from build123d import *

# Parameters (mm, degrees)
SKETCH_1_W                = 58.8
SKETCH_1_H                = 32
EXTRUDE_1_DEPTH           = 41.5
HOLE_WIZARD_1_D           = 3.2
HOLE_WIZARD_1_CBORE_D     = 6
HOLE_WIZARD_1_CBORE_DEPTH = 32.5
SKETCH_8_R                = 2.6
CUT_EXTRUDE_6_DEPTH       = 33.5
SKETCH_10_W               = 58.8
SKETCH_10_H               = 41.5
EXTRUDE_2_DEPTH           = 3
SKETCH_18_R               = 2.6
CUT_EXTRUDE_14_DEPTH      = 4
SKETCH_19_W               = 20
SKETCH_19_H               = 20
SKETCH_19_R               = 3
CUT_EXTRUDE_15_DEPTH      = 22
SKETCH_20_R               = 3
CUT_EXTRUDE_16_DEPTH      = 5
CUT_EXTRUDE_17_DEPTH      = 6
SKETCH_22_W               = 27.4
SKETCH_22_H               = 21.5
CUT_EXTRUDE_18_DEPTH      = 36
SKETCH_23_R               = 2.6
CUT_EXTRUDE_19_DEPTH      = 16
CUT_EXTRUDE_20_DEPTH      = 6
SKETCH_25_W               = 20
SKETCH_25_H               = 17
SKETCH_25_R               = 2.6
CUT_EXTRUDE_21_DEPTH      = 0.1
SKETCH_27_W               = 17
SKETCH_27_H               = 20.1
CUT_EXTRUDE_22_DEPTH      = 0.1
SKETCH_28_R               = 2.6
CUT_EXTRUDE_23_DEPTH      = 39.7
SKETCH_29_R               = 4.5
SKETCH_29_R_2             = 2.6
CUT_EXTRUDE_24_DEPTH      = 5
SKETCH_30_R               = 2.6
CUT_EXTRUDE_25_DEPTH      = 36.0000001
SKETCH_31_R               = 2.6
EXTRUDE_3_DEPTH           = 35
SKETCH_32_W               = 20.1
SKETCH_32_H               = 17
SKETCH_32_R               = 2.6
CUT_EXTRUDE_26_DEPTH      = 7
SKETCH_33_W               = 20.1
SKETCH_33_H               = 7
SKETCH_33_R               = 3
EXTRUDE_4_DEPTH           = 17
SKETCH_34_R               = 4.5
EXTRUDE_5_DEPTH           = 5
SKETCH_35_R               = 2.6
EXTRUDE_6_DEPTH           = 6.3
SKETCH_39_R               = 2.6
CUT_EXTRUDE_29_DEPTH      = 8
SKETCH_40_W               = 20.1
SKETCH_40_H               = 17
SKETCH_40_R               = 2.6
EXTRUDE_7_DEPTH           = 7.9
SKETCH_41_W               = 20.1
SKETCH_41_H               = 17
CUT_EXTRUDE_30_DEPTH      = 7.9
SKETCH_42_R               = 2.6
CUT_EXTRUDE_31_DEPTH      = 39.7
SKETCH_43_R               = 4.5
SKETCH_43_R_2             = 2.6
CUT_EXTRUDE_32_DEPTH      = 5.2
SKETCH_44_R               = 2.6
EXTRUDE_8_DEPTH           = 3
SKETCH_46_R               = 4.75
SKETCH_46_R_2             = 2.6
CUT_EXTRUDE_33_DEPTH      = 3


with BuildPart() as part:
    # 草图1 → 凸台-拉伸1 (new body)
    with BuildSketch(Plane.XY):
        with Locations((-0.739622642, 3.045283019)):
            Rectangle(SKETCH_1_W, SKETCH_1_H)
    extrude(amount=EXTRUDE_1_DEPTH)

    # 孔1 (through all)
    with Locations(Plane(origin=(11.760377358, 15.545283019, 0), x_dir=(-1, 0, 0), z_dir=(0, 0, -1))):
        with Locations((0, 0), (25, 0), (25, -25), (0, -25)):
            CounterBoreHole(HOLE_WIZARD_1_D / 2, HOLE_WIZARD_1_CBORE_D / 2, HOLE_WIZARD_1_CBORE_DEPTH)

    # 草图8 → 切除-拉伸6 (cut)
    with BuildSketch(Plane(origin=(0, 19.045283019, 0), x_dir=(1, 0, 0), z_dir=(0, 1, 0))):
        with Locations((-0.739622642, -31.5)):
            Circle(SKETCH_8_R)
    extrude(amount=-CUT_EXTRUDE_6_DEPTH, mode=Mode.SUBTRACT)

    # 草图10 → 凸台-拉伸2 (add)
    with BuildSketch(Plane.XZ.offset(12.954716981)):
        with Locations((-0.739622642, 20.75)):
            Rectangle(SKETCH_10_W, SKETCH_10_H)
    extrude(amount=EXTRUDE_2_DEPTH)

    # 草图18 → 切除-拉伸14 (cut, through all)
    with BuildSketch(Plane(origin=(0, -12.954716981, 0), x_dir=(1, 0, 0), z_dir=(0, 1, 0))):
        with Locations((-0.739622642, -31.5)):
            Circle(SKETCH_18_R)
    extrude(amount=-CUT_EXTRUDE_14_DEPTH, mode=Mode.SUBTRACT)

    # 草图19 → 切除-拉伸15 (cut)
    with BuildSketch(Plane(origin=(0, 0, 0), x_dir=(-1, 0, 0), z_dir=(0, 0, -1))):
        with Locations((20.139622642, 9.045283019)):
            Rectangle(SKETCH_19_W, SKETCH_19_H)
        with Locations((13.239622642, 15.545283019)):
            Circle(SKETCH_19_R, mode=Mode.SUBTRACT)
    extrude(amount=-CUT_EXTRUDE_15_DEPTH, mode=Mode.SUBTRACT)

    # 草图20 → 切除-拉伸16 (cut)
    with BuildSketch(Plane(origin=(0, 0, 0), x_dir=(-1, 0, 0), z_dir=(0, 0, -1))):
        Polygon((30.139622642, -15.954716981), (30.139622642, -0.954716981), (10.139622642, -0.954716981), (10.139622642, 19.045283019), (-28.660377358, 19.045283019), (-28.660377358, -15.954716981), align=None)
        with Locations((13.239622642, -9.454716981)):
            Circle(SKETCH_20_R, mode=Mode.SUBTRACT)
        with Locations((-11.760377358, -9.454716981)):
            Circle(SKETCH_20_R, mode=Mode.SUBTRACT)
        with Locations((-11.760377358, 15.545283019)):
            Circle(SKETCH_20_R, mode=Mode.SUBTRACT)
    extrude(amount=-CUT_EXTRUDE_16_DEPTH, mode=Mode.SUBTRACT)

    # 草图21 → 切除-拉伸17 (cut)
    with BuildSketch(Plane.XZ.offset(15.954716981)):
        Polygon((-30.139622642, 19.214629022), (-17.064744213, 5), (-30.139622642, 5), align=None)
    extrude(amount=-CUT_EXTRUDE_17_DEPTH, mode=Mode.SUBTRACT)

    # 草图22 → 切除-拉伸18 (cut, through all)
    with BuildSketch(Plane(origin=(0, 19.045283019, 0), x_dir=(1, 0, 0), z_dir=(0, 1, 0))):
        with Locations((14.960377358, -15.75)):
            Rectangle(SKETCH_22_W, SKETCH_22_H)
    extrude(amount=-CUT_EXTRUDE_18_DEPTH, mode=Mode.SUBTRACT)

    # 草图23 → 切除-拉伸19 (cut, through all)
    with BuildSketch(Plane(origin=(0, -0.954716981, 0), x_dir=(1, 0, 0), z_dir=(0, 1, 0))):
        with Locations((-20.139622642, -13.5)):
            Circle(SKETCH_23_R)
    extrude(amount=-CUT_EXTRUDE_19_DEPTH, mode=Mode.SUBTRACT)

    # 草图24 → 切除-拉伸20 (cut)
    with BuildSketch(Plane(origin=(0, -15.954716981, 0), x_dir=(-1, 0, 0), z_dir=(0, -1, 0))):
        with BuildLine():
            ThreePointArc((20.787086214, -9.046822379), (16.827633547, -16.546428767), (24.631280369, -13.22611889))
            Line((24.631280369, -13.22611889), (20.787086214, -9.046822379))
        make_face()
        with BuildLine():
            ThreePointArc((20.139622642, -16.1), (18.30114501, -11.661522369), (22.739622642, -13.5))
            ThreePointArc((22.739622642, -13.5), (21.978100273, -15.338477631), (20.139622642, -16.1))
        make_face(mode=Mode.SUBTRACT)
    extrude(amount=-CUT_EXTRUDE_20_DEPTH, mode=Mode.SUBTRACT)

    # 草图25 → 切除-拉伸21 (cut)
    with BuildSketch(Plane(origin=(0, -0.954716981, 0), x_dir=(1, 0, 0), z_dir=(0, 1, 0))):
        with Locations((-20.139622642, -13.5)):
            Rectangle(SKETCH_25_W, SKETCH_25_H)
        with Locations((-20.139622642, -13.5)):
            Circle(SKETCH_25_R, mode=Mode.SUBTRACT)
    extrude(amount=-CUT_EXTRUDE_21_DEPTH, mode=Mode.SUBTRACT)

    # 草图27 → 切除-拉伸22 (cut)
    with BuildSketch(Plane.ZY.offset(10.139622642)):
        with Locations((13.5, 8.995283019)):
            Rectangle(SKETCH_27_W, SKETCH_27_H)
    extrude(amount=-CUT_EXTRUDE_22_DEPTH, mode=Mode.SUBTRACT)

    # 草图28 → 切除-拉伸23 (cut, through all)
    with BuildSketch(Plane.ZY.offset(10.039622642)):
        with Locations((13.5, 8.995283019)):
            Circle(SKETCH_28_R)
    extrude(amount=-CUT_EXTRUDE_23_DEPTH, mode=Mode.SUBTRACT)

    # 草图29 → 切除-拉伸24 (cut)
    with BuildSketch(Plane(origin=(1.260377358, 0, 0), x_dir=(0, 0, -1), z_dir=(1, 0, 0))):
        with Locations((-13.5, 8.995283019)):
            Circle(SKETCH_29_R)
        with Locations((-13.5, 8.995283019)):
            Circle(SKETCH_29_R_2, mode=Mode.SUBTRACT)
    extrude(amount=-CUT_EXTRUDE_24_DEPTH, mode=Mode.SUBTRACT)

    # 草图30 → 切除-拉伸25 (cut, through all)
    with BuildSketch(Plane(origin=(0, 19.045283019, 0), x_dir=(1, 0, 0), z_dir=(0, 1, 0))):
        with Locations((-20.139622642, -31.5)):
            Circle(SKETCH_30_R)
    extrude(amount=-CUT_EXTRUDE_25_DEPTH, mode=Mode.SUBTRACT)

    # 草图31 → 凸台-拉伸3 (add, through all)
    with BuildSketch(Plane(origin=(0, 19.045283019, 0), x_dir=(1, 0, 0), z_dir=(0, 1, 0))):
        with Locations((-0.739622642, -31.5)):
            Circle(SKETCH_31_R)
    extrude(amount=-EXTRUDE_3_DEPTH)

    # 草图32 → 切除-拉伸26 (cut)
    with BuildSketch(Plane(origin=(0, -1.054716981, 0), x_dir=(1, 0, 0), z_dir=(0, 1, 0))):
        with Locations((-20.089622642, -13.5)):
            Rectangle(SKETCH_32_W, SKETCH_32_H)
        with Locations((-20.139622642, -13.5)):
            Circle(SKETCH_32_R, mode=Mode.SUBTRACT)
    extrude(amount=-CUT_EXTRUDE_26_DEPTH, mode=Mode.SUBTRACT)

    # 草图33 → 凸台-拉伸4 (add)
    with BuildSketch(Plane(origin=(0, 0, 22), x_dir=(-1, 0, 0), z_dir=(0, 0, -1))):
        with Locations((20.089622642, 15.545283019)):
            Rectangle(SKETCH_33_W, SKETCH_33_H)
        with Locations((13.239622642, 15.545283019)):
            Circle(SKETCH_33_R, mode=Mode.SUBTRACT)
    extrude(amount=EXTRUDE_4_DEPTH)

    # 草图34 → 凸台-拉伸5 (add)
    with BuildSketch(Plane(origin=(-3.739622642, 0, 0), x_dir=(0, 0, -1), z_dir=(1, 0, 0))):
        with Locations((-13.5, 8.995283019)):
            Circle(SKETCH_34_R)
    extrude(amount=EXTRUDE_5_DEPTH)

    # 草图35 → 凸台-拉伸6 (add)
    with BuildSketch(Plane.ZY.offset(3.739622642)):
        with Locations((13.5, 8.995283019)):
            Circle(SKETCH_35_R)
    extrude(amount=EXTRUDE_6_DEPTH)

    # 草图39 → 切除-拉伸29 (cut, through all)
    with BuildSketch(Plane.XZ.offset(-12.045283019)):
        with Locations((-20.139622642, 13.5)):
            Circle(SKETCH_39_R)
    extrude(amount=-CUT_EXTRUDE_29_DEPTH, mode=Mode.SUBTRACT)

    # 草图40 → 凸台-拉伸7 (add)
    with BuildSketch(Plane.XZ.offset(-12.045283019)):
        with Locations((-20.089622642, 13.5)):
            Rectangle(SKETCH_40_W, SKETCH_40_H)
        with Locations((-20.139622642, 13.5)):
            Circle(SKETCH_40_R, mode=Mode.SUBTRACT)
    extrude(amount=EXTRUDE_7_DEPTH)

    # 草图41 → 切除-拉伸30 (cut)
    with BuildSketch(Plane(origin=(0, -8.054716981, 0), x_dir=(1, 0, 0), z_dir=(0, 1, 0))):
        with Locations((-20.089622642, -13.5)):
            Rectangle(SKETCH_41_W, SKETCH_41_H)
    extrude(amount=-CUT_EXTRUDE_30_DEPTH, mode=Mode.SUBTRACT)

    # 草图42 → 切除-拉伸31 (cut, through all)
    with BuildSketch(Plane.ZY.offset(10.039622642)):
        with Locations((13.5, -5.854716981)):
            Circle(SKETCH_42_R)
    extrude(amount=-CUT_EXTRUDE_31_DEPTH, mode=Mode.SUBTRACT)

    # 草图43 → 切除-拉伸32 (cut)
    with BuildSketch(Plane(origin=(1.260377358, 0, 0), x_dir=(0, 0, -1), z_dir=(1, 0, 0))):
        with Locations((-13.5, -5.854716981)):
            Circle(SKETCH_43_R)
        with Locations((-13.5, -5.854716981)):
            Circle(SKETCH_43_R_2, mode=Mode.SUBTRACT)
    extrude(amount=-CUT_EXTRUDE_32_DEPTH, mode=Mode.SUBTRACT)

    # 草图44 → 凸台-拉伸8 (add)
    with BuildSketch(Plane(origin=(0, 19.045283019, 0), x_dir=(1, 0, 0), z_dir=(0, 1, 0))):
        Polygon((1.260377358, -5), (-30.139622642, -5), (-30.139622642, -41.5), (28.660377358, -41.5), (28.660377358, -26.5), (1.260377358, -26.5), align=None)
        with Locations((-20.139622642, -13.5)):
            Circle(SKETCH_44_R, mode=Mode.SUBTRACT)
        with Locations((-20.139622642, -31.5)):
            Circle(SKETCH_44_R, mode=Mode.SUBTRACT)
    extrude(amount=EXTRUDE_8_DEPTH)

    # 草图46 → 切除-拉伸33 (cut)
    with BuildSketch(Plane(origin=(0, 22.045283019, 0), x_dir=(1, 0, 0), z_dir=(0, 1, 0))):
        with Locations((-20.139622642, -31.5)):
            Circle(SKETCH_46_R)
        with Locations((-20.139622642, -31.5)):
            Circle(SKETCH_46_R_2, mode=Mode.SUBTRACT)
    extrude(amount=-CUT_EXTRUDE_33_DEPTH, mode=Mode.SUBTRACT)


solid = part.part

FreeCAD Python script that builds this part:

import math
import FreeCAD as App
import Part
import Sketcher

V = App.Vector


def add_polygon(sketch, points):
    """Adds a closed chain of lines whose ends are joined by coincident constraints."""
    first, n = sketch.GeometryCount, len(points)
    for a, b in zip(points, points[1:] + points[:1]):
        sketch.addGeometry(Part.LineSegment(App.Vector(*a, 0), App.Vector(*b, 0)), False)
    for i in range(n):
        sketch.addConstraint(Sketcher.Constraint("Coincident", first + i, 2, first + (i + 1) % n, 1))

doc = App.newDocument("Part")
params = doc.addObject("Spreadsheet::Sheet", "Params")
for row, (alias, value) in enumerate([
    ("sketch1_height", "32 mm"),
    ("sketch1_width", "58.8 mm"),
    ("pad1_length", "41.5 mm"),
    ("sketch2_diameter", "3.2 mm"),
    ("hole_diameter", "3.2 mm"),
    ("hole_cbore_diameter", "6 mm"),
    ("hole_cbore_depth", "32.5 mm"),
    ("sketch3_diameter", "5.2 mm"),
    ("pocket1_length", "33.5 mm"),
    ("sketch4_width", "58.8 mm"),
    ("sketch4_height", "41.5 mm"),
    ("pad2_length", "3 mm"),
    ("sketch5_diameter", "5.2 mm"),
    ("sketch6_diameter", "6 mm"),
    ("sketch6_width", "20 mm"),
    ("pocket3_length", "22 mm"),
    ("sketch7_diameter", "6 mm"),
    ("sketch7_width", "20 mm"),
    ("sketch7_height", "15 mm"),
    ("sketch7_width2", "38.8 mm"),
    ("pocket4_length", "5 mm"),
    ("pocket5_length", "6 mm"),
    ("sketch9_width", "27.4 mm"),
    ("sketch9_height", "21.5 mm"),
    ("sketch10_diameter", "5.2 mm"),
    ("sketch11_radius", "4.5 mm"),
    ("sketch11_radius2", "2.6 mm"),
    ("pocket8_length", "6 mm"),
    ("sketch12_diameter", "5.2 mm"),
    ("sketch12_width", "20 mm"),
    ("sketch12_height", "17 mm"),
    ("pocket9_length", "0.1 mm"),
    ("sketch13_height", "17 mm"),
    ("sketch13_width", "20.1 mm"),
    ("pocket10_length", "0.1 mm"),
    ("sketch14_diameter", "5.2 mm"),
    ("sketch15_diameter", "9 mm"),
    ("sketch15_diameter2", "5.2 mm"),
    ("pocket12_length", "5 mm"),
    ("sketch16_diameter", "5.2 mm"),
    ("sketch17_diameter", "5.2 mm"),
    ("pad3_length", "35 mm"),
    ("sketch18_diameter", "5.2 mm"),
    ("sketch18_height", "17 mm"),
    ("sketch18_width", "20.1 mm"),
    ("pocket14_length", "7 mm"),
    ("sketch19_diameter", "6 mm"),
    ("sketch19_height", "7 mm"),
    ("sketch19_width", "20.1 mm"),
    ("pad4_length", "17 mm"),
    ("sketch20_diameter", "9 mm"),
    ("pad5_length", "5 mm"),
    ("sketch21_diameter", "5.2 mm"),
    ("pad6_length", "6.3 mm"),
    ("sketch22_diameter", "5.2 mm"),
    ("sketch23_diameter", "5.2 mm"),
    ("sketch23_height", "17 mm"),
    ("sketch23_width", "20.1 mm"),
    ("pad7_length", "7.9 mm"),
    ("sketch24_height", "17 mm"),
    ("sketch24_width", "20.1 mm"),
    ("pocket16_length", "7.9 mm"),
    ("sketch25_diameter", "5.2 mm"),
    ("sketch26_diameter", "9 mm"),
    ("sketch26_diameter2", "5.2 mm"),
    ("pocket18_length", "5.2 mm"),
    ("sketch27_diameter", "5.2 mm"),
    ("sketch27_height", "15 mm"),
    ("sketch27_width", "31.4 mm"),
    ("sketch27_width2", "58.8 mm"),
    ("sketch27_height2", "36.5 mm"),
    ("pad8_length", "3 mm"),
    ("sketch28_diameter", "9.5 mm"),
    ("sketch28_diameter2", "5.2 mm"),
    ("pocket19_length", "3 mm"),
], start=1):
    params.set(f"A{row}", alias)
    params.set(f"B{row}", "=" + value)
    params.setAlias(f"B{row}", alias)

body = doc.addObject("PartDesign::Body", "Body")

sketch1 = doc.addObject("Sketcher::SketchObject", "Sketch")
body.addObject(sketch1)
sketch1.AttachmentSupport = (doc.XY_Plane, [""])
sketch1.MapMode = "FlatFace"
add_polygon(sketch1, [(-30, 19), (-30, -13), (29, -13), (29, 19)])
sketch1.addConstraint([
    Sketcher.Constraint("Vertical", 0),
    Sketcher.Constraint("Horizontal", 1),
    Sketcher.Constraint("Vertical", 2),
    Sketcher.Constraint("Horizontal", 3),
    Sketcher.Constraint("DistanceY", 0, 2, 0, 1, 32.0),
    Sketcher.Constraint("DistanceX", 1, 1, 1, 2, 58.8),
    Sketcher.Constraint("DistanceX", 0, 2, -1, 1, 30.139623),
    Sketcher.Constraint("DistanceY", 0, 2, -1, 1, 12.954717),
])
sketch1.setExpression("Constraints[8]", "Params.sketch1_height")
sketch1.setExpression("Constraints[9]", "Params.sketch1_width")
pad1 = doc.addObject("PartDesign::Pad", "Pad")
body.addObject(pad1)
pad1.Profile = sketch1
pad1.setExpression("Length", "Params.pad1_length")

sketch2 = doc.addObject("Sketcher::SketchObject", "Sketch001")
body.addObject(sketch2)
sketch2.AttachmentSupport = (doc.XY_Plane, [""])
sketch2.MapMode = "FlatFace"
sketch2.addGeometry([
    Part.Circle(V(11.8, 15.5, 0), V(0, 0, 1), 1.6),
    Part.Circle(V(-13.2, 15.5, 0), V(0, 0, 1), 1.6),
    Part.Circle(V(-13.2, -9.5, 0), V(0, 0, 1), 1.6),
    Part.Circle(V(11.8, -9.5, 0), V(0, 0, 1), 1.6),
], False)
sketch2.addConstraint([
    Sketcher.Constraint("Equal", 0, 1),
    Sketcher.Constraint("Equal", 1, 2),
    Sketcher.Constraint("Equal", 2, 3),
    Sketcher.Constraint("Horizontal", 0, 3, 1, 3),
    Sketcher.Constraint("Horizontal", 2, 3, 3, 3),
    Sketcher.Constraint("Vertical", 1, 3, 2, 3),
    Sketcher.Constraint("Vertical", 0, 3, 3, 3),
    Sketcher.Constraint("Diameter", 0, 3.2),
    Sketcher.Constraint("DistanceX", 1, 3, 0, 3, 25.0),
    Sketcher.Constraint("DistanceY", 2, 3, 1, 3, 25.0),
    Sketcher.Constraint("DistanceX", -1, 1, 0, 3, 11.760377),
    Sketcher.Constraint("DistanceY", -1, 1, 0, 3, 15.545283),
])
sketch2.setExpression("Constraints[7]", "Params.sketch2_diameter")
doc.recompute()
hole = doc.addObject("PartDesign::Hole", "Hole")
body.addObject(hole)
hole.Profile = sketch2
hole.ThreadType = "None"
hole.setExpression("Diameter", "Params.hole_diameter")
hole.DepthType = "ThroughAll"
hole.HoleCutType = "Counterbore"
hole.setExpression("HoleCutDiameter", "Params.hole_cbore_diameter")
hole.setExpression("HoleCutDepth", "Params.hole_cbore_depth")
hole.Reversed = True

sketch3 = doc.addObject("Sketcher::SketchObject", "Sketch002")
body.addObject(sketch3)
sketch3.AttachmentSupport = (doc.XZ_Plane, [""])
sketch3.MapMode = "FlatFace"
sketch3.AttachmentOffset = App.Placement(V(0, 0, -19.045283), App.Rotation())
sketch3.addGeometry(Part.Circle(V(-0.7, 31.5, 0), V(0, 0, 1), 2.6), False)
sketch3.addConstraint([
    Sketcher.Constraint("Diameter", 0, 5.2),
    Sketcher.Constraint("DistanceY", -1, 1, 0, 3, 31.5),
    Sketcher.Constraint("DistanceX", 0, 3, -1, 1, 0.739623),
])
sketch3.setExpression("Constraints[0]", "Params.sketch3_diameter")
pocket1 = doc.addObject("PartDesign::Pocket", "Pocket")
body.addObject(pocket1)
pocket1.Profile = sketch3
pocket1.setExpression("Length", "Params.pocket1_length")
pocket1.Reversed = True

sketch4 = doc.addObject("Sketcher::SketchObject", "Sketch003")
body.addObject(sketch4)
sketch4.AttachmentSupport = (doc.XZ_Plane, [""])
sketch4.MapMode = "FlatFace"
sketch4.AttachmentOffset = App.Placement(V(0, 0, 12.954717), App.Rotation())
add_polygon(sketch4, [(-30, 42), (-30, 0), (29, 0), (29, 42)])
sketch4.addConstraint([
    Sketcher.Constraint("Vertical", 0),
    Sketcher.Constraint("Horizontal", 1),
    Sketcher.Constraint("Vertical", 2),
    Sketcher.Constraint("Horizontal", 3),
    Sketcher.Constraint("PointOnObject", 0, 2, -1),
    Sketcher.Constraint("DistanceX", 1, 1, 1, 2, 58.8),
    Sketcher.Constraint("DistanceY", 0, 2, 0, 1, 41.5),
    Sketcher.Constraint("DistanceX", 0, 2, -1, 1, 30.139623),
])
sketch4.setExpression("Constraints[9]", "Params.sketch4_width")
sketch4.setExpression("Constraints[10]", "Params.sketch4_height")
pad2 = doc.addObject("PartDesign::Pad", "Pad001")
body.addObject(pad2)
pad2.Profile = sketch4
pad2.setExpression("Length", "Params.pad2_length")

sketch5 = doc.addObject("Sketcher::SketchObject", "Sketch004")
body.addObject(sketch5)
sketch5.AttachmentSupport = (doc.XZ_Plane, [""])
sketch5.MapMode = "FlatFace"
sketch5.AttachmentOffset = App.Placement(V(0, 0, 12.954717), App.Rotation())
sketch5.addGeometry(Part.Circle(V(-0.7, 31.5, 0), V(0, 0, 1), 2.6), False)
sketch5.addConstraint([
    Sketcher.Constraint("Diameter", 0, 5.2),
    Sketcher.Constraint("DistanceY", -1, 1, 0, 3, 31.5),
    Sketcher.Constraint("DistanceX", 0, 3, -1, 1, 0.739623),
])
sketch5.setExpression("Constraints[0]", "Params.sketch5_diameter")
pocket2 = doc.addObject("PartDesign::Pocket", "Pocket001")
body.addObject(pocket2)
pocket2.Profile = sketch5
pocket2.Type = "ThroughAll"
pocket2.Reversed = True

sketch6 = doc.addObject("Sketcher::SketchObject", "Sketch005")
body.addObject(sketch6)
sketch6.AttachmentSupport = (doc.XY_Plane, [""])
sketch6.MapMode = "FlatFace"
add_polygon(sketch6, [(-10.1, 19), (-10.1, -1), (-30.1, -1), (-30.1, 19)])
sketch6.addGeometry(Part.Circle(V(-13.2, 15.5, 0), V(0, 0, 1), 3), False)
sketch6.addConstraint([
    Sketcher.Constraint("Vertical", 0),
    Sketcher.Constraint("Horizontal", 1),
    Sketcher.Constraint("Vertical", 2),
    Sketcher.Constraint("Horizontal", 3),
    Sketcher.Constraint("Equal", 3, 0),
    Sketcher.Constraint("Diameter", 4, 6.0),
    Sketcher.Constraint("DistanceX", 1, 2, 1, 1, 20.0),
    Sketcher.Constraint("DistanceX", 4, 3, 0, 2, 3.1),
    Sketcher.Constraint("DistanceY", 0, 2, 4, 3, 16.5),
    Sketcher.Constraint("DistanceX", 4, 3, -1, 1, 13.239623),
    Sketcher.Constraint("DistanceY", -1, 1, 4, 3, 15.545283),
])
sketch6.setExpression("Constraints[9]", "Params.sketch6_diameter")
sketch6.setExpression("Constraints[10]", "Params.sketch6_width")
pocket3 = doc.addObject("PartDesign::Pocket", "Pocket002")
body.addObject(pocket3)
pocket3.Profile = sketch6
pocket3.setExpression("Length", "Params.pocket3_length")
pocket3.Reversed = True

sketch7 = doc.addObject("Sketcher::SketchObject", "Sketch006")
body.addObject(sketch7)
sketch7.AttachmentSupport = (doc.XY_Plane, [""])
sketch7.MapMode = "FlatFace"
add_polygon(sketch7, [(-30.1, -16), (-30.1, -1), (-10.1, -1), (-10.1, 19), (28.7, 19), (28.7, -16)])
sketch7.addGeometry(Part.Circle(V(11.8, -9.5, 0), V(0, 0, 1), 3), False)
sketch7.addGeometry(Part.Circle(V(-13.2, -9.5, 0), V(0, 0, 1), 3), False)
sketch7.addGeometry(Part.Circle(V(11.8, 15.5, 0), V(0, 0, 1), 3), False)
sketch7.addConstraint([
    Sketcher.Constraint("Vertical", 0),
    Sketcher.Constraint("Horizontal", 1),
    Sketcher.Constraint("Vertical", 2),
    Sketcher.Constraint("Horizontal", 3),
    Sketcher.Constraint("Vertical", 4),
    Sketcher.Constraint("Horizontal", 5),
    Sketcher.Constraint("Equal", 6, 7),
    Sketcher.Constraint("Equal", 7, 8),
    Sketcher.Constraint("Horizontal", 6, 3, 7, 3),
    Sketcher.Constraint("Vertical", 6, 3, 8, 3),
    Sketcher.Constraint("Equal", 1, 2),
    Sketcher.Constraint("Diameter", 6, 6.0),
    Sketcher.Constraint("DistanceX", 1, 1, 1, 2, 20.0),
    Sketcher.Constraint("DistanceY", 0, 1, 0, 2, 15.0),
    Sketcher.Constraint("DistanceX", 3, 1, 3, 2, 38.8),
    Sketcher.Constraint("DistanceX", 7, 3, 6, 3, 25.0),
    Sketcher.Constraint("DistanceY", 6, 3, 8, 3, 25.0),
    Sketcher.Constraint("DistanceX", 0, 2, 7, 3, 16.9),
    Sketcher.Constraint("DistanceY", 7, 3, 0, 2, 8.5),
    Sketcher.Constraint("DistanceX", -1, 1, 6, 3, 11.760377),
    Sketcher.Constraint("DistanceY", 6, 3, -1, 1, 9.454717),
])
sketch7.setExpression("Constraints[17]", "Params.sketch7_diameter")
sketch7.setExpression("Constraints[18]", "Params.sketch7_width")
sketch7.setExpression("Constraints[19]", "Params.sketch7_height")
sketch7.setExpression("Constraints[20]", "Params.sketch7_width2")
pocket4 = doc.addObject("PartDesign::Pocket", "Pocket003")
body.addObject(pocket4)
pocket4.Profile = sketch7
pocket4.setExpression("Length", "Params.pocket4_length")
pocket4.Reversed = True

sketch8 = doc.addObject("Sketcher::SketchObject", "Sketch007")
body.addObject(sketch8)
sketch8.AttachmentSupport = (doc.XZ_Plane, [""])
sketch8.MapMode = "FlatFace"
sketch8.AttachmentOffset = App.Placement(V(0, 0, 15.954717), App.Rotation())
add_polygon(sketch8, [(-17, 5), (-30, 19), (-30, 5)])
sketch8.addConstraint([
    Sketcher.Constraint("Vertical", 1),
    Sketcher.Constraint("Horizontal", 2),
    Sketcher.Constraint("DistanceY", -1, 1, 1, 2, 5.0),
    Sketcher.Constraint("DistanceX", 2, 1, 2, 2, 13.074878),
    Sketcher.Constraint("DistanceY", 1, 2, 1, 1, 14.214629),
    Sketcher.Constraint("DistanceX", 0, 2, -1, 1, 30.139623),
])
pocket5 = doc.addObject("PartDesign::Pocket", "Pocket004")
body.addObject(pocket5)
pocket5.Profile = sketch8
pocket5.setExpression("Length", "Params.pocket5_length")

sketch9 = doc.addObject("Sketcher::SketchObject", "Sketch008")
body.addObject(sketch9)
sketch9.AttachmentSupport = (doc.XZ_Plane, [""])
sketch9.MapMode = "FlatFace"
sketch9.AttachmentOffset = App.Placement(V(0, 0, -19.045283), App.Rotation())
add_polygon(sketch9, [(1, 5), (1, 26), (29, 26), (29, 5)])
sketch9.addConstraint([
    Sketcher.Constraint("Vertical", 0),
    Sketcher.Constraint("Horizontal", 1),
    Sketcher.Constraint("Vertical", 2),
    Sketcher.Constraint("Horizontal", 3),
    Sketcher.Constraint("DistanceX", 1, 1, 1, 2, 27.4),
    Sketcher.Constraint("DistanceY", 0, 1, 0, 2, 21.5),
    Sketcher.Constraint("DistanceY", -1, 1, 2, 2, 5.0),
    Sketcher.Constraint("DistanceX", -1, 1, 0, 2, 1.260377),
])
sketch9.setExpression("Constraints[8]", "Params.sketch9_width")
sketch9.setExpression("Constraints[9]", "Params.sketch9_height")
pocket6 = doc.addObject("PartDesign::Pocket", "Pocket005")
body.addObject(pocket6)
pocket6.Profile = sketch9
pocket6.Type = "ThroughAll"
pocket6.Reversed = True

sketch10 = doc.addObject("Sketcher::SketchObject", "Sketch009")
body.addObject(sketch10)
sketch10.AttachmentSupport = (doc.XZ_Plane, [""])
sketch10.MapMode = "FlatFace"
sketch10.AttachmentOffset = App.Placement(V(0, 0, 0.954717), App.Rotation())
sketch10.addGeometry(Part.Circle(V(-20.1, 13.5, 0), V(0, 0, 1), 2.6), False)
sketch10.addConstraint([
    Sketcher.Constraint("Diameter", 0, 5.2),
    Sketcher.Constraint("DistanceY", -1, 1, 0, 3, 13.5),
    Sketcher.Constraint("DistanceX", 0, 3, -1, 1, 20.139623),
])
sketch10.setExpression("Constraints[0]", "Params.sketch10_diameter")
pocket7 = doc.addObject("PartDesign::Pocket", "Pocket006")
body.addObject(pocket7)
pocket7.Profile = sketch10
pocket7.Type = "ThroughAll"
pocket7.Reversed = True

sketch11 = doc.addObject("Sketcher::SketchObject", "Sketch010")
body.addObject(sketch11)
sketch11.AttachmentSupport = (doc.XZ_Plane, [""])
sketch11.MapMode = "FlatFace"
sketch11.AttachmentOffset = App.Placement(V(0, 0, 15.954717), App.Rotation())
sketch11.addGeometry([
    Part.ArcOfCircle(Part.Circle(V(-20.1, 13.5, 0), V(0, 0, 1), 4.5), math.radians(-98), math.radians(183)),
    Part.LineSegment(V(-24.6, 13.2, 0), V(-20.8, 9, 0)),
    Part.ArcOfCircle(Part.Circle(V(-20.1, 13.5, 0), V(0, 0, 1), 2.6), math.radians(90), math.radians(180)),
    Part.ArcOfCircle(Part.Circle(V(-20.1, 13.5, 0), V(0, 0, 1), 2.6), math.radians(180), math.radians(450)),
], False)
sketch11.addConstraint([
    Sketcher.Constraint("Coincident", 0, 1, 1, 2),
    Sketcher.Constraint("Coincident", 1, 1, 0, 2),
    Sketcher.Constraint("Tangent", 2, 1, 3, 2),
    Sketcher.Constraint("Coincident", 3, 1, 2, 2),
    Sketcher.Constraint("Coincident", 2, 3, 0, 3),
    Sketcher.Constraint("Horizontal", 2, 3, 3, 1),
    Sketcher.Constraint("Vertical", 3, 3, 2, 1),
    Sketcher.Constraint("Radius", 0, 4.5),
    Sketcher.Constraint("Radius", 2, 2.6),
    Sketcher.Constraint("DistanceY", -1, 1, 0, 3, 13.5),
    Sketcher.Constraint("Distance", 1, 5.678411),
    Sketcher.Constraint("DistanceX", 1, 1, -1, 1, 24.63128),
    Sketcher.Constraint("DistanceY", -1, 1, 1, 1, 13.226119),
])
sketch11.setExpression("Constraints[7]", "Params.sketch11_radius")
sketch11.setExpression("Constraints[8]", "Params.sketch11_radius2")
pocket8 = doc.addObject("PartDesign::Pocket", "Pocket007")
body.addObject(pocket8)
pocket8.Profile = sketch11
pocket8.setExpression("Length", "Params.pocket8_length")

sketch12 = doc.addObject("Sketcher::SketchObject", "Sketch011")
body.addObject(sketch12)
sketch12.AttachmentSupport = (doc.XZ_Plane, [""])
sketch12.MapMode = "FlatFace"
sketch12.AttachmentOffset = App.Placement(V(0, 0, 0.954717), App.Rotation())
add_polygon(sketch12, [(-30.1, 5), (-30.1, 22), (-10.1, 22), (-10.1, 5)])
sketch12.addGeometry(Part.Circle(V(-20.1, 13.5, 0), V(0, 0, 1), 2.6), False)
sketch12.addConstraint([
    Sketcher.Constraint("Vertical", 0),
    Sketcher.Constraint("Horizontal", 1),
    Sketcher.Constraint("Vertical", 2),
    Sketcher.Constraint("Horizontal", 3),
    Sketcher.Constraint("Diameter", 4, 5.2),
    Sketcher.Constraint("DistanceX", 1, 1, 1, 2, 20.0),
    Sketcher.Constraint("DistanceY", 0, 1, 0, 2, 17.0),
    Sketcher.Constraint("DistanceY", -1, 1, 0, 2, 22.0),
    Sketcher.Constraint("DistanceX", 0, 2, 4, 3, 10.0),
    Sketcher.Constraint("DistanceY", -1, 1, 4, 3, 13.5),
    Sketcher.Constraint("DistanceX", 4, 3, -1, 1, 20.139623),
])
sketch12.setExpression("Constraints[8]", "Params.sketch12_diameter")
sketch12.setExpression("Constraints[9]", "Params.sketch12_width")
sketch12.setExpression("Constraints[10]", "Params.sketch12_height")
pocket9 = doc.addObject("PartDesign::Pocket", "Pocket008")
body.addObject(pocket9)
pocket9.Profile = sketch12
pocket9.setExpression("Length", "Params.pocket9_length")
pocket9.Reversed = True

sketch13 = doc.addObject("Sketcher::SketchObject", "Sketch012")
body.addObject(sketch13)
sketch13.AttachmentSupport = (doc.YZ_Plane, [""])
sketch13.MapMode = "FlatFace"
sketch13.AttachmentOffset = App.Placement(V(0, 0, -10.139623), App.Rotation())
add_polygon(sketch13, [(19, 5), (-1, 5), (-1, 22), (19, 22)])
sketch13.addConstraint([
    Sketcher.Constraint("Horizontal", 0),
    Sketcher.Constraint("Vertical", 1),
    Sketcher.Constraint("Horizontal", 2),
    Sketcher.Constraint("Vertical", 3),
    Sketcher.Constraint("DistanceY", 1, 1, 1, 2, 17.0),
    Sketcher.Constraint("DistanceX", 0, 2, 0, 1, 20.1),
    Sketcher.Constraint("DistanceY", -1, 1, 0, 2, 5.0),
    Sketcher.Constraint("DistanceX", 0, 2, -1, 1, 1.054717),
])
sketch13.setExpression("Constraints[8]", "Params.sketch13_height")
sketch13.setExpression("Constraints[9]", "Params.sketch13_width")
pocket10 = doc.addObject("PartDesign::Pocket", "Pocket009")
body.addObject(pocket10)
pocket10.Profile = sketch13
pocket10.setExpression("Length", "Params.pocket10_length")
pocket10.Reversed = True

sketch14 = doc.addObject("Sketcher::SketchObject", "Sketch013")
body.addObject(sketch14)
sketch14.AttachmentSupport = (doc.YZ_Plane, [""])
sketch14.MapMode = "FlatFace"
sketch14.AttachmentOffset = App.Placement(V(0, 0, -10.039623), App.Rotation())
sketch14.addGeometry(Part.Circle(V(9, 13.5, 0), V(0, 0, 1), 2.6), False)
sketch14.addConstraint([
    Sketcher.Constraint("Diameter", 0, 5.2),
    Sketcher.Constraint("DistanceY", -1, 1, 0, 3, 13.5),
    Sketcher.Constraint("DistanceX", -1, 1, 0, 3, 8.995283),
])
sketch14.setExpression("Constraints[0]", "Params.sketch14_diameter")
pocket11 = doc.addObject("PartDesign::Pocket", "Pocket010")
body.addObject(pocket11)
pocket11.Profile = sketch14
pocket11.Type = "ThroughAll"
pocket11.Reversed = True

sketch15 = doc.addObject("Sketcher::SketchObject", "Sketch014")
body.addObject(sketch15)
sketch15.AttachmentSupport = (doc.YZ_Plane, [""])
sketch15.MapMode = "FlatFace"
sketch15.AttachmentOffset = App.Placement(V(0, 0, 1.260377), App.Rotation())
sketch15.addGeometry([
    Part.Circle(V(9, 13.5, 0), V(0, 0, 1), 4.5),
    Part.Circle(V(9, 13.5, 0), V(0, 0, 1), 2.6),
], False)
sketch15.addConstraint([
    Sketcher.Constraint("Coincident", 1, 3, 0, 3),
    Sketcher.Constraint("Diameter", 0, 9.0),
    Sketcher.Constraint("Diameter", 1, 5.2),
    Sketcher.Constraint("DistanceY", -1, 1, 0, 3, 13.5),
    Sketcher.Constraint("DistanceX", -1, 1, 0, 3, 8.995283),
])
sketch15.setExpression("Constraints[1]", "Params.sketch15_diameter")
sketch15.setExpression("Constraints[2]", "Params.sketch15_diameter2")
pocket12 = doc.addObject("PartDesign::Pocket", "Pocket011")
body.addObject(pocket12)
pocket12.Profile = sketch15
pocket12.setExpression("Length", "Params.pocket12_length")

sketch16 = doc.addObject("Sketcher::SketchObject", "Sketch015")
body.addObject(sketch16)
sketch16.AttachmentSupport = (doc.XZ_Plane, [""])
sketch16.MapMode = "FlatFace"
sketch16.AttachmentOffset = App.Placement(V(0, 0, -19.045283), App.Rotation())
sketch16.addGeometry(Part.Circle(V(-20.1, 31.5, 0), V(0, 0, 1), 2.6), False)
sketch16.addConstraint([
    Sketcher.Constraint("Diameter", 0, 5.2),
    Sketcher.Constraint("DistanceY", -1, 1, 0, 3, 31.5),
    Sketcher.Constraint("DistanceX", 0, 3, -1, 1, 20.139623),
])
sketch16.setExpression("Constraints[0]", "Params.sketch16_diameter")
pocket13 = doc.addObject("PartDesign::Pocket", "Pocket012")
body.addObject(pocket13)
pocket13.Profile = sketch16
pocket13.Type = "ThroughAll"
pocket13.Reversed = True

sketch17 = doc.addObject("Sketcher::SketchObject", "Sketch016")
body.addObject(sketch17)
sketch17.AttachmentSupport = (doc.XZ_Plane, [""])
sketch17.MapMode = "FlatFace"
sketch17.AttachmentOffset = App.Placement(V(0, 0, -19.045283), App.Rotation())
sketch17.addGeometry(Part.Circle(V(-0.7, 31.5, 0), V(0, 0, 1), 2.6), False)
sketch17.addConstraint([
    Sketcher.Constraint("Diameter", 0, 5.2),
    Sketcher.Constraint("DistanceY", -1, 1, 0, 3, 31.5),
    Sketcher.Constraint("DistanceX", 0, 3, -1, 1, 0.739623),
])
sketch17.setExpression("Constraints[0]", "Params.sketch17_diameter")
pad3 = doc.addObject("PartDesign::Pad", "Pad002")
body.addObject(pad3)
pad3.Profile = sketch17
pad3.setExpression("Length", "Params.pad3_length")

sketch18 = doc.addObject("Sketcher::SketchObject", "Sketch017")
body.addObject(sketch18)
sketch18.AttachmentSupport = (doc.XZ_Plane, [""])
sketch18.MapMode = "FlatFace"
sketch18.AttachmentOffset = App.Placement(V(0, 0, 1.054717), App.Rotation())
add_polygon(sketch18, [(-30.1, 5), (-30.1, 22), (-10, 22), (-10, 5)])
sketch18.addGeometry(Part.Circle(V(-20.1, 13.5, 0), V(0, 0, 1), 2.6), False)
sketch18.addConstraint([
    Sketcher.Constraint("Vertical", 0),
    Sketcher.Constraint("Horizontal", 1),
    Sketcher.Constraint("Vertical", 2),
    Sketcher.Constraint("Horizontal", 3),
    Sketcher.Constraint("Diameter", 4, 5.2),
    Sketcher.Constraint("DistanceY", 0, 1, 0, 2, 17.0),
    Sketcher.Constraint("DistanceX", 1, 1, 1, 2, 20.1),
    Sketcher.Constraint("DistanceY", -1, 1, 0, 2, 22.0),
    Sketcher.Constraint("DistanceX", 0, 2, 4, 3, 10.0),
    Sketcher.Constraint("DistanceY", -1, 1, 4, 3, 13.5),
    Sketcher.Constraint("DistanceX", 4, 3, -1, 1, 20.139623),
])
sketch18.setExpression("Constraints[8]", "Params.sketch18_diameter")
sketch18.setExpression("Constraints[9]", "Params.sketch18_height")
sketch18.setExpression("Constraints[10]", "Params.sketch18_width")
pocket14 = doc.addObject("PartDesign::Pocket", "Pocket013")
body.addObject(pocket14)
pocket14.Profile = sketch18
pocket14.setExpression("Length", "Params.pocket14_length")
pocket14.Reversed = True

sketch19 = doc.addObject("Sketcher::SketchObject", "Sketch018")
body.addObject(sketch19)
sketch19.AttachmentSupport = (doc.XY_Plane, [""])
sketch19.MapMode = "FlatFace"
sketch19.AttachmentOffset = App.Placement(V(0, 0, 22), App.Rotation())
add_polygon(sketch19, [(-10, 19), (-10, 12), (-30.1, 12), (-30.1, 19)])
sketch19.addGeometry(Part.Circle(V(-13.2, 15.5, 0), V(0, 0, 1), 3), False)
sketch19.addConstraint([
    Sketcher.Constraint("Vertical", 0),
    Sketcher.Constraint("Horizontal", 1),
    Sketcher.Constraint("Vertical", 2),
    Sketcher.Constraint("Horizontal", 3),
    Sketcher.Constraint("Diameter", 4, 6.0),
    Sketcher.Constraint("DistanceY", 0, 2, 0, 1, 7.0),
    Sketcher.Constraint("DistanceX", 1, 2, 1, 1, 20.1),
    Sketcher.Constraint("DistanceX", 4, 3, 0, 2, 3.2),
    Sketcher.Constraint("DistanceY", 0, 2, 4, 3, 3.5),
    Sketcher.Constraint("DistanceX", 4, 3, -1, 1, 13.239623),
    Sketcher.Constraint("DistanceY", -1, 1, 4, 3, 15.545283),
])
sketch19.setExpression("Constraints[8]", "Params.sketch19_diameter")
sketch19.setExpression("Constraints[9]", "Params.sketch19_height")
sketch19.setExpression("Constraints[10]", "Params.sketch19_width")
pad4 = doc.addObject("PartDesign::Pad", "Pad003")
body.addObject(pad4)
pad4.Profile = sketch19
pad4.setExpression("Length", "Params.pad4_length")
pad4.Reversed = True

sketch20 = doc.addObject("Sketcher::SketchObject", "Sketch019")
body.addObject(sketch20)
sketch20.AttachmentSupport = (doc.YZ_Plane, [""])
sketch20.MapMode = "FlatFace"
sketch20.AttachmentOffset = App.Placement(V(0, 0, -3.739623), App.Rotation())
sketch20.addGeometry(Part.Circle(V(9, 13.5, 0), V(0, 0, 1), 4.5), False)
sketch20.addConstraint([
    Sketcher.Constraint("Diameter", 0, 9.0),
    Sketcher.Constraint("DistanceY", -1, 1, 0, 3, 13.5),
    Sketcher.Constraint("DistanceX", -1, 1, 0, 3, 8.995283),
])
sketch20.setExpression("Constraints[0]", "Params.sketch20_diameter")
pad5 = doc.addObject("PartDesign::Pad", "Pad004")
body.addObject(pad5)
pad5.Profile = sketch20
pad5.setExpression("Length", "Params.pad5_length")

sketch21 = doc.addObject("Sketcher::SketchObject", "Sketch020")
body.addObject(sketch21)
sketch21.AttachmentSupport = (doc.YZ_Plane, [""])
sketch21.MapMode = "FlatFace"
sketch21.AttachmentOffset = App.Placement(V(0, 0, -3.739623), App.Rotation())
sketch21.addGeometry(Part.Circle(V(9, 13.5, 0), V(0, 0, 1), 2.6), False)
sketch21.addConstraint([
    Sketcher.Constraint("Diameter", 0, 5.2),
    Sketcher.Constraint("DistanceY", -1, 1, 0, 3, 13.5),
    Sketcher.Constraint("DistanceX", -1, 1, 0, 3, 8.995283),
])
sketch21.setExpression("Constraints[0]", "Params.sketch21_diameter")
pad6 = doc.addObject("PartDesign::Pad", "Pad005")
body.addObject(pad6)
pad6.Profile = sketch21
pad6.setExpression("Length", "Params.pad6_length")
pad6.Reversed = True

sketch22 = doc.addObject("Sketcher::SketchObject", "Sketch021")
body.addObject(sketch22)
sketch22.AttachmentSupport = (doc.XZ_Plane, [""])
sketch22.MapMode = "FlatFace"
sketch22.AttachmentOffset = App.Placement(V(0, 0, -12.045283), App.Rotation())
sketch22.addGeometry(Part.Circle(V(-20.1, 13.5, 0), V(0, 0, 1), 2.6), False)
sketch22.addConstraint([
    Sketcher.Constraint("Diameter", 0, 5.2),
    Sketcher.Constraint("DistanceY", -1, 1, 0, 3, 13.5),
    Sketcher.Constraint("DistanceX", 0, 3, -1, 1, 20.139623),
])
sketch22.setExpression("Constraints[0]", "Params.sketch22_diameter")
pocket15 = doc.addObject("PartDesign::Pocket", "Pocket014")
body.addObject(pocket15)
pocket15.Profile = sketch22
pocket15.Type = "ThroughAll"

sketch23 = doc.addObject("Sketcher::SketchObject", "Sketch022")
body.addObject(sketch23)
sketch23.AttachmentSupport = (doc.XZ_Plane, [""])
sketch23.MapMode = "FlatFace"
sketch23.AttachmentOffset = App.Placement(V(0, 0, -12.045283), App.Rotation())
add_polygon(sketch23, [(-30.1, 22), (-30.1, 5), (-10, 5), (-10, 22)])
sketch23.addGeometry(Part.Circle(V(-20.1, 13.5, 0), V(0, 0, 1), 2.6), False)
sketch23.addConstraint([
    Sketcher.Constraint("Vertical", 0),
    Sketcher.Constraint("Horizontal", 1),
    Sketcher.Constraint("Vertical", 2),
    Sketcher.Constraint("Horizontal", 3),
    Sketcher.Constraint("Diameter", 4, 5.2),
    Sketcher.Constraint("DistanceY", 0, 2, 0, 1, 17.0),
    Sketcher.Constraint("DistanceX", 1, 1, 1, 2, 20.1),
    Sketcher.Constraint("DistanceY", -1, 1, 0, 2, 5.0),
    Sketcher.Constraint("DistanceX", 0, 2, 4, 3, 10.0),
    Sketcher.Constraint("DistanceY", -1, 1, 4, 3, 13.5),
    Sketcher.Constraint("DistanceX", 4, 3, -1, 1, 20.139623),
])
sketch23.setExpression("Constraints[8]", "Params.sketch23_diameter")
sketch23.setExpression("Constraints[9]", "Params.sketch23_height")
sketch23.setExpression("Constraints[10]", "Params.sketch23_width")
pad7 = doc.addObject("PartDesign::Pad", "Pad006")
body.addObject(pad7)
pad7.Profile = sketch23
pad7.setExpression("Length", "Params.pad7_length")

sketch24 = doc.addObject("Sketcher::SketchObject", "Sketch023")
body.addObject(sketch24)
sketch24.AttachmentSupport = (doc.XZ_Plane, [""])
sketch24.MapMode = "FlatFace"
sketch24.AttachmentOffset = App.Placement(V(0, 0, 8.054717), App.Rotation())
add_polygon(sketch24, [(-30, 5), (-30, 22), (-10, 22), (-10, 5)])
sketch24.addConstraint([
    Sketcher.Constraint("Vertical", 0),
    Sketcher.Constraint("Horizontal", 1),
    Sketcher.Constraint("Vertical", 2),
    Sketcher.Constraint("Horizontal", 3),
    Sketcher.Constraint("DistanceY", 0, 1, 0, 2, 17.0),
    Sketcher.Constraint("DistanceX", 1, 1, 1, 2, 20.1),
    Sketcher.Constraint("DistanceY", -1, 1, 0, 2, 22.0),
    Sketcher.Constraint("DistanceX", 0, 2, -1, 1, 30.139623),
])
sketch24.setExpression("Constraints[8]", "Params.sketch24_height")
sketch24.setExpression("Constraints[9]", "Params.sketch24_width")
pocket16 = doc.addObject("PartDesign::Pocket", "Pocket015")
body.addObject(pocket16)
pocket16.Profile = sketch24
pocket16.setExpression("Length", "Params.pocket16_length")
pocket16.Reversed = True

sketch25 = doc.addObject("Sketcher::SketchObject", "Sketch024")
body.addObject(sketch25)
sketch25.AttachmentSupport = (doc.YZ_Plane, [""])
sketch25.MapMode = "FlatFace"
sketch25.AttachmentOffset = App.Placement(V(0, 0, -10.039623), App.Rotation())
sketch25.addGeometry(Part.Circle(V(-5.9, 13.5, 0), V(0, 0, 1), 2.6), False)
sketch25.addConstraint([
    Sketcher.Constraint("Diameter", 0, 5.2),
    Sketcher.Constraint("DistanceY", -1, 1, 0, 3, 13.5),
    Sketcher.Constraint("DistanceX", 0, 3, -1, 1, 5.854717),
])
sketch25.setExpression("Constraints[0]", "Params.sketch25_diameter")
pocket17 = doc.addObject("PartDesign::Pocket", "Pocket016")
body.addObject(pocket17)
pocket17.Profile = sketch25
pocket17.Type = "ThroughAll"
pocket17.Reversed = True

sketch26 = doc.addObject("Sketcher::SketchObject", "Sketch025")
body.addObject(sketch26)
sketch26.AttachmentSupport = (doc.YZ_Plane, [""])
sketch26.MapMode = "FlatFace"
sketch26.AttachmentOffset = App.Placement(V(0, 0, 1.260377), App.Rotation())
sketch26.addGeometry([
    Part.Circle(V(-5.9, 13.5, 0), V(0, 0, 1), 4.5),
    Part.Circle(V(-5.9, 13.5, 0), V(0, 0, 1), 2.6),
], False)
sketch26.addConstraint([
    Sketcher.Constraint("Coincident", 1, 3, 0, 3),
    Sketcher.Constraint("Diameter", 0, 9.0),
    Sketcher.Constraint("Diameter", 1, 5.2),
    Sketcher.Constraint("DistanceY", -1, 1, 0, 3, 13.5),
    Sketcher.Constraint("DistanceX", 0, 3, -1, 1, 5.854717),
])
sketch26.setExpression("Constraints[1]", "Params.sketch26_diameter")
sketch26.setExpression("Constraints[2]", "Params.sketch26_diameter2")
pocket18 = doc.addObject("PartDesign::Pocket", "Pocket017")
body.addObject(pocket18)
pocket18.Profile = sketch26
pocket18.setExpression("Length", "Params.pocket18_length")

sketch27 = doc.addObject("Sketcher::SketchObject", "Sketch026")
body.addObject(sketch27)
sketch27.AttachmentSupport = (doc.XZ_Plane, [""])
sketch27.MapMode = "FlatFace"
sketch27.AttachmentOffset = App.Placement(V(0, 0, -19.045283), App.Rotation())
add_polygon(sketch27, [(1.3, 5), (-30.1, 5), (-30.1, 41.5), (28.7, 41.5), (28.7, 26.5), (1.3, 26.5)])
sketch27.addGeometry(Part.Circle(V(-20.1, 31.5, 0), V(0, 0, 1), 2.6), False)
sketch27.addGeometry(Part.Circle(V(-20.1, 13.5, 0), V(0, 0, 1), 2.6), False)
sketch27.addConstraint([
    Sketcher.Constraint("Horizontal", 0),
    Sketcher.Constraint("Vertical", 1),
    Sketcher.Constraint("Horizontal", 2),
    Sketcher.Constraint("Vertical", 3),
    Sketcher.Constraint("Horizontal", 4),
    Sketcher.Constraint("Vertical", 5),
    Sketcher.Constraint("Equal", 6, 7),
    Sketcher.Constraint("Vertical", 6, 3, 7, 3),
    Sketcher.Constraint("Diameter", 6, 5.2),
    Sketcher.Constraint("DistanceY", 3, 2, 3, 1, 15.0),
    Sketcher.Constraint("DistanceX", 0, 2, 0, 1, 31.4),
    Sketcher.Constraint("DistanceX", 2, 1, 2, 2, 58.8),
    Sketcher.Constraint("DistanceY", 1, 1, 1, 2, 36.5),
    Sketcher.Constraint("DistanceY", -1, 1, 0, 2, 5.0),
    Sketcher.Constraint("DistanceY", 7, 3, 6, 3, 18.0),
    Sketcher.Constraint("DistanceX", 0, 2, 7, 3, 10.0),
    Sketcher.Constraint("DistanceY", 6, 3, 1, 2, 10.0),
    Sketcher.Constraint("DistanceX", 6, 3, -1, 1, 20.139623),
])
sketch27.setExpression("Constraints[14]", "Params.sketch27_diameter")
sketch27.setExpression("Constraints[15]", "Params.sketch27_height")
sketch27.setExpression("Constraints[16]", "Params.sketch27_width")
sketch27.setExpression("Constraints[17]", "Params.sketch27_width2")
sketch27.setExpression("Constraints[18]", "Params.sketch27_height2")
pad8 = doc.addObject("PartDesign::Pad", "Pad007")
body.addObject(pad8)
pad8.Profile = sketch27
pad8.setExpression("Length", "Params.pad8_length")
pad8.Reversed = True

sketch28 = doc.addObject("Sketcher::SketchObject", "Sketch027")
body.addObject(sketch28)
sketch28.AttachmentSupport = (doc.XZ_Plane, [""])
sketch28.MapMode = "FlatFace"
sketch28.AttachmentOffset = App.Placement(V(0, 0, -22.045283), App.Rotation())
sketch28.addGeometry([
    Part.Circle(V(-20.1, 31.5, 0), V(0, 0, 1), 4.8),
    Part.Circle(V(-20.1, 31.5, 0), V(0, 0, 1), 2.6),
], False)
sketch28.addConstraint([
    Sketcher.Constraint("Coincident", 1, 3, 0, 3),
    Sketcher.Constraint("Diameter", 0, 9.5),
    Sketcher.Constraint("Diameter", 1, 5.2),
    Sketcher.Constraint("DistanceY", -1, 1, 0, 3, 31.5),
    Sketcher.Constraint("DistanceX", 0, 3, -1, 1, 20.139623),
])
sketch28.setExpression("Constraints[1]", "Params.sketch28_diameter")
sketch28.setExpression("Constraints[2]", "Params.sketch28_diameter2")
pocket19 = doc.addObject("PartDesign::Pocket", "Pocket018")
body.addObject(pocket19)
pocket19.Profile = sketch28
pocket19.setExpression("Length", "Params.pocket19_length")
pocket19.Reversed = True

doc.recompute()
